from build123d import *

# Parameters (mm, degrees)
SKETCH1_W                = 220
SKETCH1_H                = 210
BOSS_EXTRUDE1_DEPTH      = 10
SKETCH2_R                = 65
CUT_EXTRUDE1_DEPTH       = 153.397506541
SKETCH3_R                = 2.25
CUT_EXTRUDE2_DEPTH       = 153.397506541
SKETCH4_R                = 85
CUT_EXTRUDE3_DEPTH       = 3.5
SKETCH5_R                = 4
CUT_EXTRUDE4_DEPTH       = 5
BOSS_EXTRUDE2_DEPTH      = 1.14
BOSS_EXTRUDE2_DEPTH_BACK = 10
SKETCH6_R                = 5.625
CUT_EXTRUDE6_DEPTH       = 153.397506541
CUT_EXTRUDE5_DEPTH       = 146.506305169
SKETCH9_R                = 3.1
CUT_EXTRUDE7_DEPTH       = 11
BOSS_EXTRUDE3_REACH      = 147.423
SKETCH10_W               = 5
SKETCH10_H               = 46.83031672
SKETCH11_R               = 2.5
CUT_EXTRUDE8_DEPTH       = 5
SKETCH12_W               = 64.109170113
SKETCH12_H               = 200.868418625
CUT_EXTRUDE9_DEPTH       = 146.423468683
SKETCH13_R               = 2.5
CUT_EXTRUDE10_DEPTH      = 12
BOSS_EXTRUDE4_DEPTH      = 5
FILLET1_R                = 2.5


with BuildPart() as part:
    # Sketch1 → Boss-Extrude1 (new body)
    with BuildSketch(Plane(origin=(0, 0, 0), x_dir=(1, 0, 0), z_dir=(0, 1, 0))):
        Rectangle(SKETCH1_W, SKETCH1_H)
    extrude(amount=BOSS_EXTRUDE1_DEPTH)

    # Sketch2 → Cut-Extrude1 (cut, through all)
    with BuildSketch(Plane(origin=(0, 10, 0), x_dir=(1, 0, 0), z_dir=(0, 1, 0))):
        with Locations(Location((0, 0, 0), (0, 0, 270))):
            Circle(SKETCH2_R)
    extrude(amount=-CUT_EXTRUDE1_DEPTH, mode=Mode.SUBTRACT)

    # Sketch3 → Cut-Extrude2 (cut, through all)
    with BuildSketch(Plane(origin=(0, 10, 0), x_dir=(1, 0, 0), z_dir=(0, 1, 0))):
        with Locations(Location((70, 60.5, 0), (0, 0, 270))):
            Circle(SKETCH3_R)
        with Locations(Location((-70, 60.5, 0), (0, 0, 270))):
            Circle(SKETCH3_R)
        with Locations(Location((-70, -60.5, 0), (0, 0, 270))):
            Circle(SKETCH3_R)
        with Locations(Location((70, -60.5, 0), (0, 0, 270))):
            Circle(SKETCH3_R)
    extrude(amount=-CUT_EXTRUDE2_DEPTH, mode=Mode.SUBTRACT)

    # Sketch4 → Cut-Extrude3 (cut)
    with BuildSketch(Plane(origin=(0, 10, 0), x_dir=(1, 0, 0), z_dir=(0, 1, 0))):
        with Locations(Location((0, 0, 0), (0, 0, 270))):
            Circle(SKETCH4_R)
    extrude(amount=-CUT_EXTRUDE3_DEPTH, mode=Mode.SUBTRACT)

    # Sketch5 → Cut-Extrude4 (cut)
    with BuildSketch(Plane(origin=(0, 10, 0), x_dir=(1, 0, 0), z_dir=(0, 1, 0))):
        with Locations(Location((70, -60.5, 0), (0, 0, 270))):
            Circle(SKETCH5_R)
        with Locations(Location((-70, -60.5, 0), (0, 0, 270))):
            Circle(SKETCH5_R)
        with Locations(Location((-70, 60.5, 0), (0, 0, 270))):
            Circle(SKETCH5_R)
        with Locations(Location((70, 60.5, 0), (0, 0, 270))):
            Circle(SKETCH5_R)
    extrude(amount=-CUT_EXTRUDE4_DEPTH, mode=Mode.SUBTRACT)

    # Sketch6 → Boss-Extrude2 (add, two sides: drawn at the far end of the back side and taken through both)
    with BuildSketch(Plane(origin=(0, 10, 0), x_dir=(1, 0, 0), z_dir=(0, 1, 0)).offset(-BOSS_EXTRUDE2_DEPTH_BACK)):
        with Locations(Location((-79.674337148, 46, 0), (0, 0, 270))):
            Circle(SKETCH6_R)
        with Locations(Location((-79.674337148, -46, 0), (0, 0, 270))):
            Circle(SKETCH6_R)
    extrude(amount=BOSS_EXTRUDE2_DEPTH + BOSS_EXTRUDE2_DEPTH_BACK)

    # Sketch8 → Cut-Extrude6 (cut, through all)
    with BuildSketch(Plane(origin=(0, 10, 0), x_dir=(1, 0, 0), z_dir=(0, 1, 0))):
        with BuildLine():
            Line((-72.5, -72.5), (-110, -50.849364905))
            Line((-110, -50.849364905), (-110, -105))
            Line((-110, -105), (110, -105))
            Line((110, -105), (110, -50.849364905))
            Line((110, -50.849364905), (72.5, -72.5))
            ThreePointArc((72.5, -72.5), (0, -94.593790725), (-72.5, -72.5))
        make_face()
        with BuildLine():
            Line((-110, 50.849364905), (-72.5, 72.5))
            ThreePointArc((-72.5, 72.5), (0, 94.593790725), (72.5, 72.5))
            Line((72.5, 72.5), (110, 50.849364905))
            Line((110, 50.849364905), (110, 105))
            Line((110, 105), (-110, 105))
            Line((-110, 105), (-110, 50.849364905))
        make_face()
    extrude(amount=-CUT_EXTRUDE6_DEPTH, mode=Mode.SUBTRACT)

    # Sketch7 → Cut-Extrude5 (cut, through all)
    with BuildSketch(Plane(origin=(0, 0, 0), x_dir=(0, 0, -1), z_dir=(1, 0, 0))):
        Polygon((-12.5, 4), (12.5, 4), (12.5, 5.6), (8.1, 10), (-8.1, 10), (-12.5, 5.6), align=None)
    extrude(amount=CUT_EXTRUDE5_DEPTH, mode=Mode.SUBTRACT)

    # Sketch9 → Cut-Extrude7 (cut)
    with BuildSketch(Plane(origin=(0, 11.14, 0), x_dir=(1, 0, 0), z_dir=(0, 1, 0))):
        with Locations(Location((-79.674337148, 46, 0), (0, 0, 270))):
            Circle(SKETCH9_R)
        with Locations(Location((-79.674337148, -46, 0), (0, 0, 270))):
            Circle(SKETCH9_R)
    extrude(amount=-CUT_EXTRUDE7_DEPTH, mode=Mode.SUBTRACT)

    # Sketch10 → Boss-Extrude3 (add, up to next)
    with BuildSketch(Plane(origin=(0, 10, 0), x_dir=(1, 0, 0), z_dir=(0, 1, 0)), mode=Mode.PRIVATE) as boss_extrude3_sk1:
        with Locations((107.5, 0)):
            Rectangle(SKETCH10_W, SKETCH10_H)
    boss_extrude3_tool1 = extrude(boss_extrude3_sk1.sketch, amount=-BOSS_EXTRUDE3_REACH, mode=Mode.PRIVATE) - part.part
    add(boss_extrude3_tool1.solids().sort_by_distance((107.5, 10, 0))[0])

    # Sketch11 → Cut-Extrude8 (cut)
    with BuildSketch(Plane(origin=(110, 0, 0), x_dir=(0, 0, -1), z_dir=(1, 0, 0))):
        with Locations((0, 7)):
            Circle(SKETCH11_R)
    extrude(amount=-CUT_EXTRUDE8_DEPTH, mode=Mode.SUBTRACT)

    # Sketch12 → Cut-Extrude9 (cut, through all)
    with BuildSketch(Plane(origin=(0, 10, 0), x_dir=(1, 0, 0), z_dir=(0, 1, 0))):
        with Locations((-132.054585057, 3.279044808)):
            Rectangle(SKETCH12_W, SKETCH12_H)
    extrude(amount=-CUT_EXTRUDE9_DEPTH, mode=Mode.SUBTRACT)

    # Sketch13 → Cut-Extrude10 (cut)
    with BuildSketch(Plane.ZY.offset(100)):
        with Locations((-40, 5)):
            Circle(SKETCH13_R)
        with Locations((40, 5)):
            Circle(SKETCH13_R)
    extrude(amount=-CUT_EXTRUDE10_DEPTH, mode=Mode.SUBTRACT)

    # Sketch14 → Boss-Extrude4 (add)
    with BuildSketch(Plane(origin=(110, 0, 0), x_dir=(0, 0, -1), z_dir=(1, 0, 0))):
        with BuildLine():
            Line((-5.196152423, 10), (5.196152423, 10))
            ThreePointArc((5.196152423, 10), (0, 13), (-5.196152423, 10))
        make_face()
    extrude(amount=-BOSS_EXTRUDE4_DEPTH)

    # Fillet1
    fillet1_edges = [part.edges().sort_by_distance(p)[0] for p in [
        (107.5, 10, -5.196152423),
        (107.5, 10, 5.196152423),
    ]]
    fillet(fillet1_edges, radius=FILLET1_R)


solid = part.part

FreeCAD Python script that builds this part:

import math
import FreeCAD as App
import Part
import Sketcher

V = App.Vector
Q = App.Units.Quantity


def edges_at(feature, points):
    """Names of the edges that pass closest to the given points."""
    edges = feature.Shape.Edges
    near = lambda p: min(range(len(edges)), key=lambda i: edges[i].distToShape(Part.Vertex(*p))[0])
    return sorted({f"Edge{near(p) + 1}" for p in points})

doc = App.newDocument("Part")
body = doc.addObject("PartDesign::Body", "Body")

# Sketch on XZ plane
sketch1 = body.newObject("Sketcher::SketchObject", "Sketch")
sketch1.AttachmentSupport = (doc.getObject("XZ_Plane"), [""])
sketch1.MapMode = "FlatFace"
sketch1.addGeometry(Part.LineSegment(V(-110, -105, 0), V(-110, 105, 0)), False)
sketch1.addGeometry(Part.LineSegment(V(-110, 105, 0), V(110, 105, 0)), False)
sketch1.addGeometry(Part.LineSegment(V(110, 105, 0), V(110, -105, 0)), False)
sketch1.addGeometry(Part.LineSegment(V(110, -105, 0), V(-110, -105, 0)), False)
sketch1.addConstraint(Sketcher.Constraint("Coincident", 0, 2, 1, 1))
sketch1.addConstraint(Sketcher.Constraint("Coincident", 1, 2, 2, 1))
sketch1.addConstraint(Sketcher.Constraint("Coincident", 2, 2, 3, 1))
sketch1.addConstraint(Sketcher.Constraint("Coincident", 3, 2, 0, 1))
sketch1.addConstraint(Sketcher.Constraint("Vertical", 0))
sketch1.addConstraint(Sketcher.Constraint("Horizontal", 1))
sketch1.addConstraint(Sketcher.Constraint("Vertical", 2))
sketch1.addConstraint(Sketcher.Constraint("Horizontal", 3))
sketch1.addConstraint(Sketcher.Constraint("Symmetric", 0, 2, 2, 2, -1, 1))
sketch1.addConstraint(Sketcher.Constraint("DistanceX", 1, 1, 1, 2, 220.0))
sketch1.addConstraint(Sketcher.Constraint("DistanceY", 0, 1, 0, 2, 210.0))
pad1 = body.newObject("PartDesign::Pad", "Pad")
pad1.Profile = sketch1
pad1.Length = 10
pad1.Reversed = True

# Sketch on XZ plane
sketch2 = body.newObject("Sketcher::SketchObject", "Sketch001")
sketch2.AttachmentSupport = (doc.getObject("XZ_Plane"), [""])
sketch2.MapMode = "FlatFace"
sketch2.AttachmentOffset = App.Placement(V(0, 0, -10), App.Rotation())
sketch2.addGeometry(Part.Circle(V(0, 0, 0), V(0, 0, 1), 65), False)
sketch2.addConstraint(Sketcher.Constraint("Coincident", 0, 3, -1, 1))
sketch2.addConstraint(Sketcher.Constraint("Diameter", 0, 130.0))
pocket1 = body.newObject("PartDesign::Pocket", "Pocket")
pocket1.Profile = sketch2
pocket1.Type = "ThroughAll"
pocket1.Reversed = True

# Sketch on XZ plane
sketch3 = body.newObject("Sketcher::SketchObject", "Sketch002")
sketch3.AttachmentSupport = (doc.getObject("XZ_Plane"), [""])
sketch3.MapMode = "FlatFace"
sketch3.AttachmentOffset = App.Placement(V(0, 0, -10), App.Rotation())
sketch3.addGeometry(Part.Circle(V(70, -60.5, 0), V(0, 0, 1), 2.2), False)
sketch3.addGeometry(Part.Circle(V(-70, -60.5, 0), V(0, 0, 1), 2.2), False)
sketch3.addGeometry(Part.Circle(V(-70, 60.5, 0), V(0, 0, 1), 2.2), False)
sketch3.addGeometry(Part.Circle(V(70, 60.5, 0), V(0, 0, 1), 2.2), False)
sketch3.addConstraint(Sketcher.Constraint("Equal", 0, 1))
sketch3.addConstraint(Sketcher.Constraint("Equal", 1, 2))
sketch3.addConstraint(Sketcher.Constraint("Equal", 2, 3))
sketch3.addConstraint(Sketcher.Constraint("Symmetric", 0, 3, 2, 3, -1, 1))
sketch3.addConstraint(Sketcher.Constraint("Symmetric", 1, 3, 3, 3, -1, 1))
sketch3.addConstraint(Sketcher.Constraint("Symmetric", 0, 3, 1, 3, -2))
sketch3.addConstraint(Sketcher.Constraint("Diameter", 0, 4.5))
sketch3.addConstraint(Sketcher.Constraint("DistanceX", -1, 1, 0, 3, 70.0))
sketch3.addConstraint(Sketcher.Constraint("DistanceY", 1, 3, 2, 3, 121.0))
pocket2 = body.newObject("PartDesign::Pocket", "Pocket001")
pocket2.Profile = sketch3
pocket2.Type = "ThroughAll"
pocket2.Reversed = True

# Sketch on XZ plane
sketch4 = body.newObject("Sketcher::SketchObject", "Sketch003")
sketch4.AttachmentSupport = (doc.getObject("XZ_Plane"), [""])
sketch4.MapMode = "FlatFace"
sketch4.AttachmentOffset = App.Placement(V(0, 0, -10), App.Rotation())
sketch4.addGeometry(Part.Circle(V(0, 0, 0), V(0, 0, 1), 85), False)
sketch4.addConstraint(Sketcher.Constraint("Coincident", 0, 3, -1, 1))
sketch4.addConstraint(Sketcher.Constraint("Diameter", 0, 170.0))
pocket3 = body.newObject("PartDesign::Pocket", "Pocket002")
pocket3.Profile = sketch4
pocket3.Length = 3.5
pocket3.Reversed = True

# Sketch on XZ plane
sketch5 = body.newObject("Sketcher::SketchObject", "Sketch004")
sketch5.AttachmentSupport = (doc.getObject("XZ_Plane"), [""])
sketch5.MapMode = "FlatFace"
sketch5.AttachmentOffset = App.Placement(V(0, 0, -10), App.Rotation())
sketch5.addGeometry(Part.Circle(V(70, 60.5, 0), V(0, 0, 1), 4), False)
sketch5.addGeometry(Part.Circle(V(-70, 60.5, 0), V(0, 0, 1), 4), False)
sketch5.addGeometry(Part.Circle(V(-70, -60.5, 0), V(0, 0, 1), 4), False)
sketch5.addGeometry(Part.Circle(V(70, -60.5, 0), V(0, 0, 1), 4), False)
sketch5.addConstraint(Sketcher.Constraint("Equal", 0, 1))
sketch5.addConstraint(Sketcher.Constraint("Equal", 1, 2))
sketch5.addConstraint(Sketcher.Constraint("Equal", 2, 3))
sketch5.addConstraint(Sketcher.Constraint("Symmetric", 0, 3, 2, 3, -1, 1))
sketch5.addConstraint(Sketcher.Constraint("Symmetric", 1, 3, 3, 3, -1, 1))
sketch5.addConstraint(Sketcher.Constraint("Symmetric", 0, 3, 1, 3, -2))
sketch5.addConstraint(Sketcher.Constraint("Diameter", 0, 8.0))
sketch5.addConstraint(Sketcher.Constraint("DistanceX", -1, 1, 0, 3, 70.0))
sketch5.addConstraint(Sketcher.Constraint("DistanceY", 2, 3, 1, 3, 121.0))
pocket4 = body.newObject("PartDesign::Pocket", "Pocket003")
pocket4.Profile = sketch5
pocket4.Length = 5
pocket4.Reversed = True

# Sketch on XZ plane
sketch6 = body.newObject("Sketcher::SketchObject", "Sketch005")
sketch6.AttachmentSupport = (doc.getObject("XZ_Plane"), [""])
sketch6.MapMode = "FlatFace"
sketch6.AttachmentOffset = App.Placement(V(0, 0, -10), App.Rotation())
sketch6.addGeometry(Part.Circle(V(-80, -46, 0), V(0, 0, 1), 6), False)
sketch6.addGeometry(Part.Circle(V(-80, 46, 0), V(0, 0, 1), 6), False)
sketch6.addConstraint(Sketcher.Constraint("Equal", 0, 1))
sketch6.addConstraint(Sketcher.Constraint("Symmetric", 0, 3, 1, 3, -1))
sketch6.addConstraint(Sketcher.Constraint("Diameter", 0, 11.25))
sketch6.addConstraint(Sketcher.Constraint("DistanceY", 0, 3, -1, 1, 46.0))
sketch6.addConstraint(Sketcher.Constraint("DistanceX", 0, 3, -1, 1, 79.674337))
pad2 = body.newObject("PartDesign::Pad", "Pad001")
pad2.Profile = sketch6
pad2.Type = "TwoLengths"
pad2.Length = 1.14
pad2.Length2 = 10
pad2.Reversed = True

# Sketch on XZ plane
sketch7 = body.newObject("Sketcher::SketchObject", "Sketch006")
sketch7.AttachmentSupport = (doc.getObject("XZ_Plane"), [""])
sketch7.MapMode = "FlatFace"
sketch7.AttachmentOffset = App.Placement(V(0, 0, -10), App.Rotation())
sketch7.addGeometry(Part.LineSegment(V(-72, 72, 0), V(-110, 51, 0)), False)
sketch7.addGeometry(Part.LineSegment(V(-110, 51, 0), V(-110, 105, 0)), False)
sketch7.addGeometry(Part.LineSegment(V(-110, 105, 0), V(110, 105, 0)), False)
sketch7.addGeometry(Part.LineSegment(V(110, 105, 0), V(110, 51, 0)), False)
sketch7.addGeometry(Part.LineSegment(V(110, 51, 0), V(72, 72, 0)), False)
sketch7.addGeometry(Part.ArcOfCircle(Part.Circle(V(0, -35, 0), V(0, 0, 1), 130), math.radians(56), math.radians(124)), False)
sketch7.addGeometry(Part.LineSegment(V(-110, -51, 0), V(-72, -72, 0)), False)
sketch7.addGeometry(Part.ArcOfCircle(Part.Circle(V(0, 35, 0), V(0, 0, 1), 130), math.radians(-124), math.radians(-56)), False)
sketch7.addGeometry(Part.LineSegment(V(72, -72, 0), V(110, -51, 0)), False)
sketch7.addGeometry(Part.LineSegment(V(110, -51, 0), V(110, -105, 0)), False)
sketch7.addGeometry(Part.LineSegment(V(110, -105, 0), V(-110, -105, 0)), False)
sketch7.addGeometry(Part.LineSegment(V(-110, -105, 0), V(-110, -51, 0)), False)
sketch7.addConstraint(Sketcher.Constraint("Coincident", 0, 2, 1, 1))
sketch7.addConstraint(Sketcher.Constraint("Coincident", 1, 2, 2, 1))
sketch7.addConstraint(Sketcher.Constraint("Coincident", 2, 2, 3, 1))
sketch7.addConstraint(Sketcher.Constraint("Coincident", 3, 2, 4, 1))
sketch7.addConstraint(Sketcher.Constraint("Coincident", 4, 2, 5, 1))
sketch7.addConstraint(Sketcher.Constraint("Coincident", 5, 2, 0, 1))
sketch7.addConstraint(Sketcher.Constraint("Coincident", 6, 2, 7, 1))
sketch7.addConstraint(Sketcher.Constraint("Coincident", 7, 2, 8, 1))
sketch7.addConstraint(Sketcher.Constraint("Coincident", 8, 2, 9, 1))
sketch7.addConstraint(Sketcher.Constraint("Coincident", 9, 2, 10, 1))
sketch7.addConstraint(Sketcher.Constraint("Coincident", 10, 2, 11, 1))
sketch7.addConstraint(Sketcher.Constraint("Coincident", 11, 2, 6, 1))
sketch7.addConstraint(Sketcher.Constraint("Vertical", 1))
sketch7.addConstraint(Sketcher.Constraint("Horizontal", 2))
sketch7.addConstraint(Sketcher.Constraint("Vertical", 3))
sketch7.addConstraint(Sketcher.Constraint("Vertical", 9))
sketch7.addConstraint(Sketcher.Constraint("Horizontal", 10))
sketch7.addConstraint(Sketcher.Constraint("Vertical", 11))
sketch7.addConstraint(Sketcher.Constraint("Equal", 5, 7))
sketch7.addConstraint(Sketcher.Constraint("Symmetric", 5, 3, 7, 3, -1, 1))
sketch7.addConstraint(Sketcher.Constraint("Symmetric", 0, 2, 8, 2, -1, 1))
sketch7.addConstraint(Sketcher.Constraint("Symmetric", 2, 2, 10, 2, -1, 1))
sketch7.addConstraint(Sketcher.Constraint("Symmetric", 0, 2, 3, 2, -2))
sketch7.addConstraint(Sketcher.Constraint("Symmetric", 4, 2, 5, 2, -2))
sketch7.addConstraint(Sketcher.Constraint("Parallel", 4, 6))
sketch7.addConstraint(Sketcher.Constraint("Parallel", 0, 8))
sketch7.addConstraint(Sketcher.Constraint("Horizontal", 6, 2, 7, 2))
sketch7.addConstraint(Sketcher.Constraint("Radius", 5, 130.0))
sketch7.addConstraint(Sketcher.Constraint("DistanceX", 2, 1, 2, 2, 220.0))
sketch7.addConstraint(Sketcher.Constraint("Angle", 0, Q("-150 deg")))
sketch7.addConstraint(Sketcher.Constraint("DistanceY", -1, 1, 1, 2, 105.0))
sketch7.addConstraint(Sketcher.Constraint("DistanceX", 5, 2, 4, 2, 145.0))
sketch7.addConstraint(Sketcher.Constraint("DistanceY", 6, 2, 5, 2, 145.0))
pocket5 = body.newObject("PartDesign::Pocket", "Pocket004")
pocket5.Profile = sketch7
pocket5.Type = "ThroughAll"
pocket5.Reversed = True

# Sketch on YZ plane
sketch8 = body.newObject("Sketcher::SketchObject", "Sketch007")
sketch8.AttachmentSupport = (doc.getObject("YZ_Plane"), [""])
sketch8.MapMode = "FlatFace"
sketch8.addGeometry(Part.LineSegment(V(4, 12.5, 0), V(4, -12.5, 0)), False)
sketch8.addGeometry(Part.LineSegment(V(4, -12.5, 0), V(5.6, -12.5, 0)), False)
sketch8.addGeometry(Part.LineSegment(V(5.6, -12.5, 0), V(10, -8.1, 0)), False)
sketch8.addGeometry(Part.LineSegment(V(10, -8.1, 0), V(10, 8.1, 0)), False)
sketch8.addGeometry(Part.LineSegment(V(10, 8.1, 0), V(5.6, 12.5, 0)), False)
sketch8.addGeometry(Part.LineSegment(V(5.6, 12.5, 0), V(4, 12.5, 0)), False)
sketch8.addConstraint(Sketcher.Constraint("Coincident", 0, 2, 1, 1))
sketch8.addConstraint(Sketcher.Constraint("Coincident", 1, 2, 2, 1))
sketch8.addConstraint(Sketcher.Constraint("Coincident", 2, 2, 3, 1))
sketch8.addConstraint(Sketcher.Constraint("Coincident", 3, 2, 4, 1))
sketch8.addConstraint(Sketcher.Constraint("Coincident", 4, 2, 5, 1))
sketch8.addConstraint(Sketcher.Constraint("Coincident", 5, 2, 0, 1))
sketch8.addConstraint(Sketcher.Constraint("Vertical", 0))
sketch8.addConstraint(Sketcher.Constraint("Horizontal", 1))
sketch8.addConstraint(Sketcher.Constraint("Vertical", 3))
sketch8.addConstraint(Sketcher.Constraint("Horizontal", 5))
sketch8.addConstraint(Sketcher.Constraint("Symmetric", 1, 2, 4, 2, -1))
sketch8.addConstraint(Sketcher.Constraint("Perpendicular", 2, 4))
sketch8.addConstraint(Sketcher.Constraint("Equal", 2, 4))
sketch8.addConstraint(Sketcher.Constraint("DistanceY", 0, 2, 0, 1, 25.0))
sketch8.addConstraint(Sketcher.Constraint("DistanceX", 1, 1, 1, 2, 1.6))
sketch8.addConstraint(Sketcher.Constraint("DistanceY", 3, 1, 3, 2, 16.2))
sketch8.addConstraint(Sketcher.Constraint("DistanceX", -1, 1, 0, 2, 4.0))
pocket6 = body.newObject("PartDesign::Pocket", "Pocket005")
pocket6.Profile = sketch8
pocket6.Type = "ThroughAll"
pocket6.Reversed = True

# Sketch on XZ plane
sketch9 = body.newObject("Sketcher::SketchObject", "Sketch008")
sketch9.AttachmentSupport = (doc.getObject("XZ_Plane"), [""])
sketch9.MapMode = "FlatFace"
sketch9.AttachmentOffset = App.Placement(V(0, 0, -11.14), App.Rotation())
sketch9.addGeometry(Part.Circle(V(-79.7, -46, 0), V(0, 0, 1), 3.1), False)
sketch9.addGeometry(Part.Circle(V(-79.7, 46, 0), V(0, 0, 1), 3.1), False)
sketch9.addConstraint(Sketcher.Constraint("Equal", 0, 1))
sketch9.addConstraint(Sketcher.Constraint("Symmetric", 0, 3, 1, 3, -1))
sketch9.addConstraint(Sketcher.Constraint("Diameter", 0, 6.2))
sketch9.addConstraint(Sketcher.Constraint("DistanceY", 0, 3, -1, 1, 46.0))
sketch9.addConstraint(Sketcher.Constraint("DistanceX", 0, 3, -1, 1, 79.674337))
pocket7 = body.newObject("PartDesign::Pocket", "Pocket006")
pocket7.Profile = sketch9
pocket7.Length = 11
pocket7.Reversed = True

# Sketch on XZ plane
sketch10 = body.newObject("Sketcher::SketchObject", "Sketch009")
sketch10.AttachmentSupport = (doc.getObject("XZ_Plane"), [""])
sketch10.MapMode = "FlatFace"
sketch10.AttachmentOffset = App.Placement(V(0, 0, -10), App.Rotation())
sketch10.addGeometry(Part.LineSegment(V(105, -23, 0), V(105, 23, 0)), False)
sketch10.addGeometry(Part.LineSegment(V(105, 23, 0), V(110, 23, 0)), False)
sketch10.addGeometry(Part.LineSegment(V(110, 23, 0), V(110, -23, 0)), False)
sketch10.addGeometry(Part.LineSegment(V(110, -23, 0), V(105, -23, 0)), False)
sketch10.addConstraint(Sketcher.Constraint("Coincident", 0, 2, 1, 1))
sketch10.addConstraint(Sketcher.Constraint("Coincident", 1, 2, 2, 1))
sketch10.addConstraint(Sketcher.Constraint("Coincident", 2, 2, 3, 1))
sketch10.addConstraint(Sketcher.Constraint("Coincident", 3, 2, 0, 1))
sketch10.addConstraint(Sketcher.Constraint("Vertical", 0))
sketch10.addConstraint(Sketcher.Constraint("Horizontal", 1))
sketch10.addConstraint(Sketcher.Constraint("Vertical", 2))
sketch10.addConstraint(Sketcher.Constraint("Horizontal", 3))
sketch10.addConstraint(Sketcher.Constraint("DistanceX", 1, 1, 1, 2, 5.0))
sketch10.addConstraint(Sketcher.Constraint("DistanceX", -1, 1, 0, 2, 105.0))
sketch10.addConstraint(Sketcher.Constraint("DistanceY", 0, 1, 0, 2, 46.830317))
sketch10.addConstraint(Sketcher.Constraint("DistanceY", -1, 1, 0, 2, 23.415158))
pad3 = body.newObject("PartDesign::Pad", "Pad002")
pad3.Profile = sketch10
pad3.Type = "UpToFirst"

# Sketch on YZ plane
sketch11 = body.newObject("Sketcher::SketchObject", "Sketch010")
sketch11.AttachmentSupport = (doc.getObject("YZ_Plane"), [""])
sketch11.MapMode = "FlatFace"
sketch11.AttachmentOffset = App.Placement(V(0, 0, 110), App.Rotation())
sketch11.addGeometry(Part.Circle(V(7, 0, 0), V(0, 0, 1), 2.5), False)
sketch11.addConstraint(Sketcher.Constraint("PointOnObject", 0, 3, -1))
sketch11.addConstraint(Sketcher.Constraint("Diameter", 0, 5.0))
sketch11.addConstraint(Sketcher.Constraint("DistanceX", -1, 1, 0, 3, 7.0))
pocket8 = body.newObject("PartDesign::Pocket", "Pocket007")
pocket8.Profile = sketch11
pocket8.Length = 5

# Sketch on XZ plane
sketch12 = body.newObject("Sketcher::SketchObject", "Sketch011")
sketch12.AttachmentSupport = (doc.getObject("XZ_Plane"), [""])
sketch12.MapMode = "FlatFace"
sketch12.AttachmentOffset = App.Placement(V(0, 0, -10), App.Rotation())
sketch12.addGeometry(Part.LineSegment(V(-164, -104, 0), V(-164, 97, 0)), False)
sketch12.addGeometry(Part.LineSegment(V(-164, 97, 0), V(-100, 97, 0)), False)
sketch12.addGeometry(Part.LineSegment(V(-100, 97, 0), V(-100, -104, 0)), False)
sketch12.addGeometry(Part.LineSegment(V(-100, -104, 0), V(-164, -104, 0)), False)
sketch12.addConstraint(Sketcher.Constraint("Coincident", 0, 2, 1, 1))
sketch12.addConstraint(Sketcher.Constraint("Coincident", 1, 2, 2, 1))
sketch12.addConstraint(Sketcher.Constraint("Coincident", 2, 2, 3, 1))
sketch12.addConstraint(Sketcher.Constraint("Coincident", 3, 2, 0, 1))
sketch12.addConstraint(Sketcher.Constraint("Vertical", 0))
sketch12.addConstraint(Sketcher.Constraint("Horizontal", 1))
sketch12.addConstraint(Sketcher.Constraint("Vertical", 2))
sketch12.addConstraint(Sketcher.Constraint("Horizontal", 3))
sketch12.addConstraint(Sketcher.Constraint("DistanceX", 1, 2, -1, 1, 100.0))
sketch12.addConstraint(Sketcher.Constraint("DistanceX", 1, 1, 1, 2, 64.10917))
sketch12.addConstraint(Sketcher.Constraint("DistanceY", 0, 1, 0, 2, 200.868419))
sketch12.addConstraint(Sketcher.Constraint("DistanceY", -1, 1, 0, 2, 97.155165))
pocket9 = body.newObject("PartDesign::Pocket", "Pocket008")
pocket9.Profile = sketch12
pocket9.Type = "ThroughAll"
pocket9.Reversed = True

# Sketch on YZ plane
sketch13 = body.newObject("Sketcher::SketchObject", "Sketch012")
sketch13.AttachmentSupport = (doc.getObject("YZ_Plane"), [""])
sketch13.MapMode = "FlatFace"
sketch13.AttachmentOffset = App.Placement(V(0, 0, -100), App.Rotation())
sketch13.addGeometry(Part.Circle(V(5, -40, 0), V(0, 0, 1), 2.5), False)
sketch13.addGeometry(Part.Circle(V(5, 40, 0), V(0, 0, 1), 2.5), False)
sketch13.addConstraint(Sketcher.Constraint("Equal", 0, 1))
sketch13.addConstraint(Sketcher.Constraint("Symmetric", 0, 3, 1, 3, -1))
sketch13.addConstraint(Sketcher.Constraint("Diameter", 0, 5.0))
sketch13.addConstraint(Sketcher.Constraint("DistanceX", -1, 1, 0, 3, 5.0))
sketch13.addConstraint(Sketcher.Constraint("DistanceY", 0, 3, -1, 1, 40.0))
pocket10 = body.newObject("PartDesign::Pocket", "Pocket009")
pocket10.Profile = sketch13
pocket10.Length = 12
pocket10.Reversed = True

# Sketch on YZ plane
sketch14 = body.newObject("Sketcher::SketchObject", "Sketch013")
sketch14.AttachmentSupport = (doc.getObject("YZ_Plane"), [""])
sketch14.MapMode = "FlatFace"
sketch14.AttachmentOffset = App.Placement(V(0, 0, 110), App.Rotation())
sketch14.addGeometry(Part.LineSegment(V(10, 5, 0), V(10, -5, 0)), False)
sketch14.addGeometry(Part.ArcOfCircle(Part.Circle(V(7, 0, 0), V(0, 0, 1), 6), math.radians(-60), math.radians(60)), False)
sketch14.addConstraint(Sketcher.Constraint("Coincident", 0, 1, 1, 2))
sketch14.addConstraint(Sketcher.Constraint("Coincident", 1, 1, 0, 2))
sketch14.addConstraint(Sketcher.Constraint("Vertical", 0))
sketch14.addConstraint(Sketcher.Constraint("PointOnObject", 1, 3, -1))
sketch14.addConstraint(Sketcher.Constraint("Radius", 1, 6.0))
sketch14.addConstraint(Sketcher.Constraint("DistanceX", -1, 1, 1, 3, 7.0))
sketch14.addConstraint(Sketcher.Constraint("DistanceX", -1, 1, 0, 1, 10.0))
pad4 = body.newObject("PartDesign::Pad", "Pad003")
pad4.Profile = sketch14
pad4.Length = 5
pad4.Reversed = True
doc.recompute()

fillet = body.newObject("PartDesign::Fillet", "Fillet")
fillet.Base = (pad4, edges_at(pad4, [(107.5, 10, -5.196), (107.5, 10, 5.196)]))
fillet.Radius = 2.5

doc.recompute()
